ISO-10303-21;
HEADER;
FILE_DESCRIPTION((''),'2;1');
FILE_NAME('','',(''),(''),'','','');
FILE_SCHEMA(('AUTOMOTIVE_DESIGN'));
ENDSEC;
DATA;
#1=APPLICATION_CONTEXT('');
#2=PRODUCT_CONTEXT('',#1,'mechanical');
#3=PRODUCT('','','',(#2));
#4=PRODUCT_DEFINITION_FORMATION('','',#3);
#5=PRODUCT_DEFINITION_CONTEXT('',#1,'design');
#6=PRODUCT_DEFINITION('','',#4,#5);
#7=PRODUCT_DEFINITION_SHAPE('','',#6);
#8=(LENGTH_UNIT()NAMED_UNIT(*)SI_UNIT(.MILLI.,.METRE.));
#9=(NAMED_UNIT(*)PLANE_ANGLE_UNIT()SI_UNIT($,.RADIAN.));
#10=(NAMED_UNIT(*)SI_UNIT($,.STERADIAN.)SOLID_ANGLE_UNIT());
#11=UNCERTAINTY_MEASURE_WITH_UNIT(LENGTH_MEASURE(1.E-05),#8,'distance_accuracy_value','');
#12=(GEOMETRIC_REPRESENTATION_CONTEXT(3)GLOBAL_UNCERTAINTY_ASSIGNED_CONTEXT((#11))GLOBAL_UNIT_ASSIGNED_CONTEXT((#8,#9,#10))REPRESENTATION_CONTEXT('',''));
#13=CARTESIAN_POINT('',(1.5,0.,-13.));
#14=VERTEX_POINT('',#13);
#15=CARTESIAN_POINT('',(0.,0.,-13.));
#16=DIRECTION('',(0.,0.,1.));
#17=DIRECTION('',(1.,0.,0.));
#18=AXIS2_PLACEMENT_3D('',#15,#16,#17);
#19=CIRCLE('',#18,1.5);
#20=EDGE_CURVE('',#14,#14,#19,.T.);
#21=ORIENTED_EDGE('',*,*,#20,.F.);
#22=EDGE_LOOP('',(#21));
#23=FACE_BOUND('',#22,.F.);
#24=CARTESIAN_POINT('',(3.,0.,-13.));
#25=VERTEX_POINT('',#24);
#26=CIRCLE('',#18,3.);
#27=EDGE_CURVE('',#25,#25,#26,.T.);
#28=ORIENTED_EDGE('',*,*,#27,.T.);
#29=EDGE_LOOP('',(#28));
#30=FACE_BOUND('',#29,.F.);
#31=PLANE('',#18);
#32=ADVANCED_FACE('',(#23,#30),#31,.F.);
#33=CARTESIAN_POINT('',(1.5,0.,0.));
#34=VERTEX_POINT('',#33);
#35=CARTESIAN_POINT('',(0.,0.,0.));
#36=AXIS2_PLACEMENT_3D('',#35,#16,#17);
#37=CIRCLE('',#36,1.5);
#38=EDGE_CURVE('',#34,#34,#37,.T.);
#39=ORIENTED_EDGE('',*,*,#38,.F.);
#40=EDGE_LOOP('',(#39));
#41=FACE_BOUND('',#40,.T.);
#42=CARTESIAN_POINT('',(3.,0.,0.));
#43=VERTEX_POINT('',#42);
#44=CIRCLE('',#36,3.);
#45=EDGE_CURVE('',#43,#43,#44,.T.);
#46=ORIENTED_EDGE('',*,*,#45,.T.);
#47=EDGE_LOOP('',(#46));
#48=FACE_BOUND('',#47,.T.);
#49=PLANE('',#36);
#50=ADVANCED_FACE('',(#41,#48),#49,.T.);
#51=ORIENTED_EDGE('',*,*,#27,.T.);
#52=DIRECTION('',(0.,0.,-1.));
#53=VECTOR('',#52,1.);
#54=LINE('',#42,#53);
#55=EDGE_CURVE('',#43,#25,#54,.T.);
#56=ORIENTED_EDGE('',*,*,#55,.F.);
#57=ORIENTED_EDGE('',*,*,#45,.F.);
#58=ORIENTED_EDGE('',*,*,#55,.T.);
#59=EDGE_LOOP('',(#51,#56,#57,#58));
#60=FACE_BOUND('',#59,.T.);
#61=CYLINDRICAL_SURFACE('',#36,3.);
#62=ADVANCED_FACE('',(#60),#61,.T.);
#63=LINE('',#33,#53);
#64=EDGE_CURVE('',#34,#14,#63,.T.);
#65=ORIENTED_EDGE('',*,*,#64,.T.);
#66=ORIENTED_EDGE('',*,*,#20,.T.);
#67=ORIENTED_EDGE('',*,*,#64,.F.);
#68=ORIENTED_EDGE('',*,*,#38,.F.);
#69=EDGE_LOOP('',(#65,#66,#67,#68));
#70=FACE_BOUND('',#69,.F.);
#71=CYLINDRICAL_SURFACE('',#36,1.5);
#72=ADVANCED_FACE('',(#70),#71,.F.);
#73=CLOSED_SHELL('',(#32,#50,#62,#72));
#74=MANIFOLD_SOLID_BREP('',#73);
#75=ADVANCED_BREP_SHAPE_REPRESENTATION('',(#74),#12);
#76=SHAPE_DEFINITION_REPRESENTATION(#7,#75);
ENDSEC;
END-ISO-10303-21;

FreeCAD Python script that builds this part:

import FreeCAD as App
import Part
import Sketcher

V = App.Vector
Q = App.Units.Quantity

doc = App.newDocument("Part")
body = doc.addObject("PartDesign::Body", "Body")

# Sketch on XY plane
sketch1 = doc.addObject("Sketcher::SketchObject", "Sketch")
body.addObject(sketch1)
sketch1.AttachmentSupport = (doc.XY_Plane, [""])
sketch1.MapMode = "FlatFace"
sketch1.addGeometry(Part.Circle(V(0, 0, 0), V(0, 0, 1), 3), False)
sketch1.addGeometry(Part.Circle(V(0, 0, 0), V(0, 0, 1), 1.5), False)
sketch1.addConstraint(Sketcher.Constraint("Coincident", 0, 3, -1, 1))
sketch1.addConstraint(Sketcher.Constraint("Coincident", 1, 3, -1, 1))
sketch1.addConstraint(Sketcher.Constraint("Diameter", 0, Q("6 mm")))
sketch1.addConstraint(Sketcher.Constraint("Diameter", 1, Q("3 mm")))
pad1 = doc.addObject("PartDesign::Pad", "Pad")
body.addObject(pad1)
pad1.Profile = sketch1
pad1.Length = 13
pad1.Reversed = True

doc.recompute()
